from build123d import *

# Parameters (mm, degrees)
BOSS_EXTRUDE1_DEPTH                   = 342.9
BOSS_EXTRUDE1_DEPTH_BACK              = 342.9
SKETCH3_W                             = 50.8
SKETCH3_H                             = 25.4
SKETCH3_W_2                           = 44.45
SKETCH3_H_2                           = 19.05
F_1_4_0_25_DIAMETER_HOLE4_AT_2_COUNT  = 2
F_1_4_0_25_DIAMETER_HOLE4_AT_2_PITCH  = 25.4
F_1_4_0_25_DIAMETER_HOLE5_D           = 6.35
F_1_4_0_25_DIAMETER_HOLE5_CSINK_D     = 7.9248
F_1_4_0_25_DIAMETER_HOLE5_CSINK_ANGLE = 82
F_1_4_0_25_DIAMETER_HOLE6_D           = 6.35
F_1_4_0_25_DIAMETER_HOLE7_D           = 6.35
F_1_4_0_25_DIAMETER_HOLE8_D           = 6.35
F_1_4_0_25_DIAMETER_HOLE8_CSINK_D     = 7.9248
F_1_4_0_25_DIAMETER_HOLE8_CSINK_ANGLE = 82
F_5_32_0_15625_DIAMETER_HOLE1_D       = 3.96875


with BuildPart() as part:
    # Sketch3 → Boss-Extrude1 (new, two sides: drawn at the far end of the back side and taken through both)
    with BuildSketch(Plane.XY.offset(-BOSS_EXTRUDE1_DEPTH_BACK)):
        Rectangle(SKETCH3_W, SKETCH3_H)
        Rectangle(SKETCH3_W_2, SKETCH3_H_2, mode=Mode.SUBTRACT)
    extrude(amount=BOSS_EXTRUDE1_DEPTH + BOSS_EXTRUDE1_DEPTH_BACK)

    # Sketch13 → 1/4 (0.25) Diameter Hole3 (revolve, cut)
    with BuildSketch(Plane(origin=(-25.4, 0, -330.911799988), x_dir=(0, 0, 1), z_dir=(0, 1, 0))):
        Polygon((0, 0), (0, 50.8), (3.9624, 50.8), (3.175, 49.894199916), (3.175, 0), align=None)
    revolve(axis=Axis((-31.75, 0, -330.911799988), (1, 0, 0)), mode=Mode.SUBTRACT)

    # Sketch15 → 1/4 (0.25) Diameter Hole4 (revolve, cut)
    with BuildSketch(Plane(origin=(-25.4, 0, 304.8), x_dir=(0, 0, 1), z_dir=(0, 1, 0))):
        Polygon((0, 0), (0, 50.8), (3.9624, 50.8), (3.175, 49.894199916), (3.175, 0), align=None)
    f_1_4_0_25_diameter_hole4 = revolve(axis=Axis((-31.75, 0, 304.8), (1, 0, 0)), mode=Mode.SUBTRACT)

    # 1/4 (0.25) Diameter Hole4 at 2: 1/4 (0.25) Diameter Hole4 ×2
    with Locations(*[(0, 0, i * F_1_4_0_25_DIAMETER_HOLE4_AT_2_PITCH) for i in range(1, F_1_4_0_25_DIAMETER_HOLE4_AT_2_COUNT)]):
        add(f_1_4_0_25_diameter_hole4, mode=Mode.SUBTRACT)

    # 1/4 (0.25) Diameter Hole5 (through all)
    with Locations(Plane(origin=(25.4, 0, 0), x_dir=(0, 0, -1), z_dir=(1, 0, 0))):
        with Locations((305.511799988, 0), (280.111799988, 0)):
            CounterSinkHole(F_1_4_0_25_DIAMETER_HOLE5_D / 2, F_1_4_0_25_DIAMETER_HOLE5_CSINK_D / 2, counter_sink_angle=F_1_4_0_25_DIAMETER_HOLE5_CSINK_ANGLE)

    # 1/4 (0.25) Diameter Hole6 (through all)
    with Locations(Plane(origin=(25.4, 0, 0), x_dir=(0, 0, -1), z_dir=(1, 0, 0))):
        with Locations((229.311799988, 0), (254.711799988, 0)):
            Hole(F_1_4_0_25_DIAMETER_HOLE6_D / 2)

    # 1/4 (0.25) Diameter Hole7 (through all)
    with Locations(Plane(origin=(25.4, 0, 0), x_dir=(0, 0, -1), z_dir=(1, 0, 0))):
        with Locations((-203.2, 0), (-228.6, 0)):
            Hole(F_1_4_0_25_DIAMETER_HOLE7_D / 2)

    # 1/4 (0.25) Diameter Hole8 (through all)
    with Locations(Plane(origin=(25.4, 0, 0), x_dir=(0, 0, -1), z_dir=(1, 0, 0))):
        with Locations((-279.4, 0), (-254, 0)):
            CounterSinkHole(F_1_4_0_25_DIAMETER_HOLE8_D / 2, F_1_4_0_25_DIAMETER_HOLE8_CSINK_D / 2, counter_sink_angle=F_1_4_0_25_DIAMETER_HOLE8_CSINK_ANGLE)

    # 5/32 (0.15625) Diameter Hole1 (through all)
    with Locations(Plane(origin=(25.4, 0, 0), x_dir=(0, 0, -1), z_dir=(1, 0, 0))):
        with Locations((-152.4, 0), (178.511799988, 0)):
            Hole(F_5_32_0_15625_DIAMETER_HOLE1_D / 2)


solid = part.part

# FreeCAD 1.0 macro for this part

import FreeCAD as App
import Part
import Sketcher
from FreeCAD import Vector
Q = App.Units.Quantity


def add_polygon(sketch, points):
    """Adds a closed chain of lines whose ends are joined by coincident constraints."""
    first, n = sketch.GeometryCount, len(points)
    for a, b in zip(points, points[1:] + points[:1]):
        sketch.addGeometry(Part.LineSegment(App.Vector(*a, 0), App.Vector(*b, 0)), False)
    for i in range(n):
        sketch.addConstraint(Sketcher.Constraint("Coincident", first + i, 2, first + (i + 1) % n, 1))

doc = App.newDocument("Part")
params = doc.addObject("Spreadsheet::Sheet", "Params")
for row, (alias, value) in enumerate([
    ("sketch1_width", "2 in"),
    ("sketch1_height", "1 in"),
    ("sketch1_width2", "1.75 in"),
    ("sketch1_height2", "0.75 in"),
    ("pad1_length", "13.5 in"),
    ("pad1_length2", "13.5 in"),
    ("sketch2_width", "2 in"),
    ("sketch2_height", "0.125 in"),
    ("sketch2_height2", "0.156 in"),
    ("groove_angle", "360 deg"),
    ("sketch3_width", "2 in"),
    ("sketch3_height", "0.125 in"),
    ("sketch3_height2", "0.156 in"),
    ("groove2_angle", "360 deg"),
    ("linearpattern_pitch", "1 in"),
    ("sketch4_diameter", "0.25 in"),
    ("hole_diameter", "0.25 in"),
    ("hole_csink_diameter", "0.312 in"),
    ("sketch5_diameter", "0.25 in"),
    ("hole2_diameter", "0.25 in"),
    ("sketch6_diameter", "0.25 in"),
    ("hole3_diameter", "0.25 in"),
    ("sketch7_diameter", "0.25 in"),
    ("hole4_diameter", "0.25 in"),
    ("hole4_csink_diameter", "0.312 in"),
    ("sketch8_diameter", "0.15625 in"),
    ("hole5_diameter", "0.15625 in"),
], start=1):
    params.set(f"A{row}", alias)
    params.set(f"B{row}", "=" + value)
    params.setAlias(f"B{row}", alias)

body = doc.addObject("PartDesign::Body", "Body")

sketch1 = body.newObject("Sketcher::SketchObject", "Sketch")
sketch1.AttachmentSupport = (doc.getObject("XY_Plane"), [""])
sketch1.MapMode = "FlatFace"
add_polygon(sketch1, [(-25, 13), (-25, -13), (25, -13), (25, 13)])
add_polygon(sketch1, [(22, -10), (-22, -10), (-22, 10), (22, 10)])
sketch1.addConstraint([
    Sketcher.Constraint("Vertical", 0),
    Sketcher.Constraint("Horizontal", 1),
    Sketcher.Constraint("Vertical", 2),
    Sketcher.Constraint("Horizontal", 3),
    Sketcher.Constraint("Horizontal", 4),
    Sketcher.Constraint("Vertical", 5),
    Sketcher.Constraint("Horizontal", 6),
    Sketcher.Constraint("Vertical", 7),
    Sketcher.Constraint("Symmetric", 0, 2, 2, 2, -1, 1),
    Sketcher.Constraint("Symmetric", 4, 2, 6, 2, -1, 1),
    Sketcher.Constraint("DistanceX", 1, 1, 1, 2, Q("2 in")),
    Sketcher.Constraint("DistanceY", 0, 2, 0, 1, Q("1 in")),
    Sketcher.Constraint("DistanceX", 4, 2, 4, 1, Q("1.75 in")),
    Sketcher.Constraint("DistanceY", 5, 1, 5, 2, Q("0.75 in")),
])
sketch1.setExpression("Constraints[18]", "Params.sketch1_width")
sketch1.setExpression("Constraints[19]", "Params.sketch1_height")
sketch1.setExpression("Constraints[20]", "Params.sketch1_width2")
sketch1.setExpression("Constraints[21]", "Params.sketch1_height2")
pad1 = body.newObject("PartDesign::Pad", "Pad")
pad1.Profile = sketch1
pad1.Type = "TwoLengths"
pad1.setExpression("Length", "Params.pad1_length")
pad1.setExpression("Length2", "Params.pad1_length2")

sketch2 = body.newObject("Sketcher::SketchObject", "Sketch001")
sketch2.AttachmentSupport = (doc.getObject("XZ_Plane"), [""])
sketch2.MapMode = "FlatFace"
add_polygon(sketch2, [(25.4, -330.9), (-25.4, -330.9), (-25.4, -327.7), (24.5, -327.7), (25.4, -326.9)])
sketch2.addGeometry(Part.LineSegment(Vector(-25.4, -330.9, 0), Vector(25.4, -330.9, 0)), True)
sketch2.addConstraint([
    Sketcher.Constraint("Horizontal", 0),
    Sketcher.Constraint("Vertical", 1),
    Sketcher.Constraint("Horizontal", 2),
    Sketcher.Constraint("Vertical", 4),
    Sketcher.Constraint("Horizontal", 5),
    Sketcher.Constraint("Coincident", 5, 1, 0, 2),
    Sketcher.Constraint("Vertical", 3, 2, 5, 2),
    Sketcher.Constraint("DistanceX", 0, 2, 0, 1, Q("2 in")),
    Sketcher.Constraint("DistanceX", 0, 2, -1, 1, Q("1 in")),
    Sketcher.Constraint("Angle", 3, Q("41 deg")),
    Sketcher.Constraint("DistanceY", 1, 1, 1, 2, Q("0.125 in")),
    Sketcher.Constraint("DistanceY", 4, 2, 4, 1, Q("0.156 in")),
    Sketcher.Constraint("DistanceY", 0, 2, -1, 1, Q("330.9118 mm")),
])
sketch2.setExpression("Constraints[12]", "Params.sketch2_width")
sketch2.setExpression("Constraints[15]", "Params.sketch2_height")
sketch2.setExpression("Constraints[16]", "Params.sketch2_height2")
groove = body.newObject("PartDesign::Groove", "Groove")
groove.Profile = sketch2
groove.ReferenceAxis = (sketch2, ["Axis0"])
groove.setExpression("Angle", "Params.groove_angle")

sketch3 = body.newObject("Sketcher::SketchObject", "Sketch002")
sketch3.AttachmentSupport = (doc.getObject("XZ_Plane"), [""])
sketch3.MapMode = "FlatFace"
add_polygon(sketch3, [(25.4, 304.8), (-25.4, 304.8), (-25.4, 308), (24.5, 308), (25.4, 308.8)])
sketch3.addGeometry(Part.LineSegment(Vector(-25.4, 304.8, 0), Vector(25.4, 304.8, 0)), True)
sketch3.addConstraint([
    Sketcher.Constraint("Horizontal", 0),
    Sketcher.Constraint("Vertical", 1),
    Sketcher.Constraint("Horizontal", 2),
    Sketcher.Constraint("Vertical", 4),
    Sketcher.Constraint("Horizontal", 5),
    Sketcher.Constraint("Coincident", 5, 1, 0, 2),
    Sketcher.Constraint("Vertical", 3, 2, 5, 2),
    Sketcher.Constraint("DistanceX", 0, 2, 0, 1, Q("2 in")),
    Sketcher.Constraint("DistanceX", 0, 2, -1, 1, Q("1 in")),
    Sketcher.Constraint("DistanceY", -1, 1, 0, 2, Q("12 in")),
    Sketcher.Constraint("Angle", 3, Q("41 deg")),
    Sketcher.Constraint("DistanceY", 1, 1, 1, 2, Q("0.125 in")),
    Sketcher.Constraint("DistanceY", 4, 2, 4, 1, Q("0.156 in")),
])
sketch3.setExpression("Constraints[12]", "Params.sketch3_width")
sketch3.setExpression("Constraints[16]", "Params.sketch3_height")
sketch3.setExpression("Constraints[17]", "Params.sketch3_height2")
groove2 = body.newObject("PartDesign::Groove", "Groove001")
groove2.Profile = sketch3
groove2.ReferenceAxis = (sketch3, ["Axis0"])
groove2.setExpression("Angle", "Params.groove2_angle")
doc.recompute()

linearpattern = body.newObject("PartDesign::LinearPattern", "LinearPattern")
linearpattern.Originals = [groove2]
linearpattern.Direction = (doc.getObject("Z_Axis"), [""])
linearpattern.Mode = "offset"
linearpattern.setExpression("Offset", "Params.linearpattern_pitch")
linearpattern.Occurrences = 2
body.Tip = linearpattern

sketch4 = body.newObject("Sketcher::SketchObject", "Sketch003")
sketch4.AttachmentSupport = (doc.getObject("YZ_Plane"), [""])
sketch4.MapMode = "FlatFace"
sketch4.AttachmentOffset = App.Placement(Vector(0, 0, 1 * 25.4), App.Rotation())
sketch4.addGeometry([
    Part.Circle(Vector(0, -305.5, 0), Vector(0, 0, 1), 3.2),
    Part.Circle(Vector(0, -280.1, 0), Vector(0, 0, 1), 3.2),
], False)
sketch4.addConstraint([
    Sketcher.Constraint("Equal", 0, 1),
    Sketcher.Constraint("PointOnObject", 0, 3, -2),
    Sketcher.Constraint("PointOnObject", 1, 3, -2),
    Sketcher.Constraint("Diameter", 0, Q("0.25 in")),
    Sketcher.Constraint("DistanceY", 0, 3, 1, 3, Q("1 in")),
    Sketcher.Constraint("DistanceY", 0, 3, -1, 1, Q("305.5118 mm")),
])
sketch4.setExpression("Constraints[3]", "Params.sketch4_diameter")
doc.recompute()
hole = body.newObject("PartDesign::Hole", "Hole")
hole.Profile = sketch4
hole.ThreadType = "None"
hole.setExpression("Diameter", "Params.hole_diameter")
hole.DepthType = "ThroughAll"
hole.HoleCutType = "Countersink"
hole.setExpression("HoleCutDiameter", "Params.hole_csink_diameter")
hole.HoleCutCountersinkAngle = 82

sketch5 = body.newObject("Sketcher::SketchObject", "Sketch004")
sketch5.AttachmentSupport = (doc.getObject("YZ_Plane"), [""])
sketch5.MapMode = "FlatFace"
sketch5.AttachmentOffset = App.Placement(Vector(0, 0, 1 * 25.4), App.Rotation())
sketch5.addGeometry([
    Part.Circle(Vector(0, -229.3, 0), Vector(0, 0, 1), 3.2),
    Part.Circle(Vector(0, -254.7, 0), Vector(0, 0, 1), 3.2),
], False)
sketch5.addConstraint([
    Sketcher.Constraint("Equal", 0, 1),
    Sketcher.Constraint("PointOnObject", 0, 3, -2),
    Sketcher.Constraint("PointOnObject", 1, 3, -2),
    Sketcher.Constraint("Diameter", 0, Q("0.25 in")),
    Sketcher.Constraint("DistanceY", 1, 3, 0, 3, Q("1 in")),
    Sketcher.Constraint("DistanceY", 0, 3, -1, 1, Q("229.3118 mm")),
])
sketch5.setExpression("Constraints[3]", "Params.sketch5_diameter")
doc.recompute()
hole2 = body.newObject("PartDesign::Hole", "Hole001")
hole2.Profile = sketch5
hole2.ThreadType = "None"
hole2.setExpression("Diameter", "Params.hole2_diameter")
hole2.DepthType = "ThroughAll"

sketch6 = body.newObject("Sketcher::SketchObject", "Sketch005")
sketch6.AttachmentSupport = (doc.getObject("YZ_Plane"), [""])
sketch6.MapMode = "FlatFace"
sketch6.AttachmentOffset = App.Placement(Vector(0, 0, 1 * 25.4), App.Rotation())
sketch6.addGeometry([
    Part.Circle(Vector(0, 203.2, 0), Vector(0, 0, 1), 3.2),
    Part.Circle(Vector(0, 228.6, 0), Vector(0, 0, 1), 3.2),
], False)
sketch6.addConstraint([
    Sketcher.Constraint("Equal", 0, 1),
    Sketcher.Constraint("PointOnObject", 0, 3, -2),
    Sketcher.Constraint("PointOnObject", 1, 3, -2),
    Sketcher.Constraint("Diameter", 0, Q("0.25 in")),
    Sketcher.Constraint("DistanceY", -1, 1, 0, 3, Q("8 in")),
    Sketcher.Constraint("DistanceY", -1, 1, 1, 3, Q("9 in")),
])
sketch6.setExpression("Constraints[3]", "Params.sketch6_diameter")
doc.recompute()
hole3 = body.newObject("PartDesign::Hole", "Hole002")
hole3.Profile = sketch6
hole3.ThreadType = "None"
hole3.setExpression("Diameter", "Params.hole3_diameter")
hole3.DepthType = "ThroughAll"

sketch7 = body.newObject("Sketcher::SketchObject", "Sketch006")
sketch7.AttachmentSupport = (doc.getObject("YZ_Plane"), [""])
sketch7.MapMode = "FlatFace"
sketch7.AttachmentOffset = App.Placement(Vector(0, 0, 1 * 25.4), App.Rotation())
sketch7.addGeometry([
    Part.Circle(Vector(0, 279.4, 0), Vector(0, 0, 1), 3.2),
    Part.Circle(Vector(0, 254, 0), Vector(0, 0, 1), 3.2),
], False)
sketch7.addConstraint([
    Sketcher.Constraint("Equal", 0, 1),
    Sketcher.Constraint("PointOnObject", 0, 3, -2),
    Sketcher.Constraint("PointOnObject", 1, 3, -2),
    Sketcher.Constraint("Diameter", 0, Q("0.25 in")),
    Sketcher.Constraint("DistanceY", -1, 1, 0, 3, Q("11 in")),
    Sketcher.Constraint("DistanceY", -1, 1, 1, 3, Q("10 in")),
])
sketch7.setExpression("Constraints[3]", "Params.sketch7_diameter")
doc.recompute()
hole4 = body.newObject("PartDesign::Hole", "Hole003")
hole4.Profile = sketch7
hole4.ThreadType = "None"
hole4.setExpression("Diameter", "Params.hole4_diameter")
hole4.DepthType = "ThroughAll"
hole4.HoleCutType = "Countersink"
hole4.setExpression("HoleCutDiameter", "Params.hole4_csink_diameter")
hole4.HoleCutCountersinkAngle = 82

sketch8 = body.newObject("Sketcher::SketchObject", "Sketch007")
sketch8.AttachmentSupport = (doc.getObject("YZ_Plane"), [""])
sketch8.MapMode = "FlatFace"
sketch8.AttachmentOffset = App.Placement(Vector(0, 0, 1 * 25.4), App.Rotation())
sketch8.addGeometry([
    Part.Circle(Vector(0, 152.4, 0), Vector(0, 0, 1), 2),
    Part.Circle(Vector(0, -178.5, 0), Vector(0, 0, 1), 2),
], False)
sketch8.addConstraint([
    Sketcher.Constraint("Equal", 0, 1),
    Sketcher.Constraint("PointOnObject", 0, 3, -2),
    Sketcher.Constraint("PointOnObject", 1, 3, -2),
    Sketcher.Constraint("Diameter", 0, Q("0.15625 in")),
    Sketcher.Constraint("DistanceY", -1, 1, 0, 3, Q("6 in")),
    Sketcher.Constraint("DistanceY", 1, 3, -1, 1, Q("178.5118 mm")),
])
sketch8.setExpression("Constraints[3]", "Params.sketch8_diameter")
doc.recompute()
hole5 = body.newObject("PartDesign::Hole", "Hole004")
hole5.Profile = sketch8
hole5.ThreadType = "None"
hole5.setExpression("Diameter", "Params.hole5_diameter")
hole5.DepthType = "ThroughAll"

doc.recompute()
